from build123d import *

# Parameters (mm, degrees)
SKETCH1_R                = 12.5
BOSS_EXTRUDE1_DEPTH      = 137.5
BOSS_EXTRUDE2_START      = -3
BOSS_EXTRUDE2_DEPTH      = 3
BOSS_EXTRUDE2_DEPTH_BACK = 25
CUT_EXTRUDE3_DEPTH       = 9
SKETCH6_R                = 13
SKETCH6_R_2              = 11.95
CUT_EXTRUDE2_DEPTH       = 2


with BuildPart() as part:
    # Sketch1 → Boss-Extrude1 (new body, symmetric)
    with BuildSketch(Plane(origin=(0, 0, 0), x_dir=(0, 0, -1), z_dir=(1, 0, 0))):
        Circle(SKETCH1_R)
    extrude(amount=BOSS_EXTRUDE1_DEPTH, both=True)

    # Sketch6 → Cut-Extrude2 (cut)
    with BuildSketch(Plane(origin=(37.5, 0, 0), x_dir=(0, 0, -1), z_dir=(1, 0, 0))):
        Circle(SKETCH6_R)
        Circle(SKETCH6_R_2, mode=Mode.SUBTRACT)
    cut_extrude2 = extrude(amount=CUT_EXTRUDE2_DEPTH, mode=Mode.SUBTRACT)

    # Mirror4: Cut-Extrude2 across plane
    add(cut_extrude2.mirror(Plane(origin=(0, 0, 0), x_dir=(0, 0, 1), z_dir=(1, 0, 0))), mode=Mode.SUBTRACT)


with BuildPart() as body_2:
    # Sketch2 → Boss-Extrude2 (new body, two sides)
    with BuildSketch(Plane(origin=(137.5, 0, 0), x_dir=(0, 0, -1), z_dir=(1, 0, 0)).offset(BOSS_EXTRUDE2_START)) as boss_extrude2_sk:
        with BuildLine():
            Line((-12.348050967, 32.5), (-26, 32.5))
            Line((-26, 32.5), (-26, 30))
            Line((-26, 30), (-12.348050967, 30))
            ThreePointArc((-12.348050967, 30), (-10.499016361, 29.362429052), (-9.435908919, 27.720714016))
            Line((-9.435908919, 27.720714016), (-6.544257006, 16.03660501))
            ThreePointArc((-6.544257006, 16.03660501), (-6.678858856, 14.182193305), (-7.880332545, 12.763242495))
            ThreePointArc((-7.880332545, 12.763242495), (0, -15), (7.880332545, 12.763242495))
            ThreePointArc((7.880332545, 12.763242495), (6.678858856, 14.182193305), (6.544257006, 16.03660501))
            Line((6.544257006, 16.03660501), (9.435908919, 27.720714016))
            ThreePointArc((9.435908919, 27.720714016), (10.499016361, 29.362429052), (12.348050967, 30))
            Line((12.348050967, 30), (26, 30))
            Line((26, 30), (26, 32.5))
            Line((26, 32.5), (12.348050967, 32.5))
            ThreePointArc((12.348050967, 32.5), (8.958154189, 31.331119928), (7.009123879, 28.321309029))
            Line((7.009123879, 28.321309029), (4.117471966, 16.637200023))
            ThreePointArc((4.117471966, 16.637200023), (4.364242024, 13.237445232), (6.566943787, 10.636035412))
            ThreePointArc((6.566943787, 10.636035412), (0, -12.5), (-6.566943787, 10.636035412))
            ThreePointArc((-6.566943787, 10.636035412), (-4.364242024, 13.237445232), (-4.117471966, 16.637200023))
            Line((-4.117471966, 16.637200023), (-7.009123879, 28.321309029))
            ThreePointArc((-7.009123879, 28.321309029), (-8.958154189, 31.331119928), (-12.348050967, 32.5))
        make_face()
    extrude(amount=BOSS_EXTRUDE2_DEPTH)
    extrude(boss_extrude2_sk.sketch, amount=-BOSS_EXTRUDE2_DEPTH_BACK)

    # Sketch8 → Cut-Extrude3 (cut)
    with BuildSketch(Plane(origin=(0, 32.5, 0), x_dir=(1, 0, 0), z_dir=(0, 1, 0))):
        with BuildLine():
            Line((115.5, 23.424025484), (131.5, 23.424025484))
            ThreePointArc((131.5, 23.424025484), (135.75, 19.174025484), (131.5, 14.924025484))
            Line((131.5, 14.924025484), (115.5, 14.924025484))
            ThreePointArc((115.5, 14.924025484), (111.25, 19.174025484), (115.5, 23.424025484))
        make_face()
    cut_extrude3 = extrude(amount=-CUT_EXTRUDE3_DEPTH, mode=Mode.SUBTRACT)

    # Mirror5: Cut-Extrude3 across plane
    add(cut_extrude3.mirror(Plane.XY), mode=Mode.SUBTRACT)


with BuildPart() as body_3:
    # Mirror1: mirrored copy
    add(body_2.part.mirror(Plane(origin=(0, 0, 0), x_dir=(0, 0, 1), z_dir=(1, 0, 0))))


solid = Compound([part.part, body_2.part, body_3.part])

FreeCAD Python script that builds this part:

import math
import FreeCAD as App
import Part
import Sketcher
Q = App.Units.Quantity

doc = App.newDocument("Part")
params = doc.addObject("Spreadsheet::Sheet", "Params")
for row, (alias, value) in enumerate([
    ("sketch1_diameter", "25 mm"),
    ("pad1_length", "275 mm"),
    ("sketch2_diameter", "26 mm"),
    ("sketch2_diameter2", "23.9 mm"),
    ("pocket1_length", "2 mm"),
    ("sketch3_radius", "3 mm"),
    ("sketch3_radius2", "15 mm"),
    ("sketch3_radius3", "5.5 mm"),
    ("pad2_length", "3 mm"),
    ("pad2_length2", "25 mm"),
    ("sketch4_width", "16 mm"),
    ("sketch4_radius", "4.25 mm"),
    ("pocket2_length", "9 mm"),
], start=1):
    params.set(f"A{row}", alias)
    params.set(f"B{row}", "=" + value)
    params.setAlias(f"B{row}", alias)

body = doc.addObject("PartDesign::Body", "Body")

sketch1 = body.newObject("Sketcher::SketchObject", "Sketch")
sketch1.AttachmentSupport = (doc.getObject("YZ_Plane"), [""])
sketch1.MapMode = "FlatFace"
sketch1.addGeometry(Part.Circle(App.Vector(0, 0, 0), App.Vector(0, 0, 1), 12), False)
sketch1.addConstraint([
    Sketcher.Constraint("Coincident", 0, 3, -1, 1),
    Sketcher.Constraint("Diameter", 0, Q("25 mm")),
])
sketch1.setExpression("Constraints[1]", "Params.sketch1_diameter")
pad1 = body.newObject("PartDesign::Pad", "Pad")
pad1.Profile = sketch1
pad1.setExpression("Length", "Params.pad1_length")
pad1.Midplane = True

sketch2 = body.newObject("Sketcher::SketchObject", "Sketch001")
sketch2.AttachmentSupport = (doc.getObject("YZ_Plane"), [""])
sketch2.MapMode = "FlatFace"
sketch2.AttachmentOffset = App.Placement(App.Vector(0, 0, 37.5), App.Rotation())
sketch2.addGeometry([
    Part.Circle(App.Vector(0, 0, 0), App.Vector(0, 0, 1), 13),
    Part.Circle(App.Vector(0, 0, 0), App.Vector(0, 0, 1), 12),
], False)
sketch2.addConstraint([
    Sketcher.Constraint("Coincident", 0, 3, -1, 1),
    Sketcher.Constraint("Coincident", 1, 3, -1, 1),
    Sketcher.Constraint("Diameter", 0, Q("26 mm")),
    Sketcher.Constraint("Diameter", 1, Q("23.9 mm")),
])
sketch2.setExpression("Constraints[2]", "Params.sketch2_diameter")
sketch2.setExpression("Constraints[3]", "Params.sketch2_diameter2")
pocket1 = body.newObject("PartDesign::Pocket", "Pocket")
pocket1.Profile = sketch2
pocket1.setExpression("Length", "Params.pocket1_length")
pocket1.Reversed = True
doc.recompute()

mirrored = body.newObject("PartDesign::Mirrored", "Mirrored")
mirrored.Originals = [pocket1]
mirrored.MirrorPlane = (doc.getObject("YZ_Plane"), [""])
body.Tip = mirrored
body2 = doc.addObject("PartDesign::Body", "Body001")

sketch3 = body2.newObject("Sketcher::SketchObject", "Sketch002")
sketch3.AttachmentSupport = (doc.getObject("YZ_Plane001"), [""])
sketch3.MapMode = "FlatFace"
sketch3.AttachmentOffset = App.Placement(App.Vector(0, 0, 134.5), App.Rotation())
sketch3.addGeometry([
    Part.LineSegment(App.Vector(32.5, 12.3, 0), App.Vector(32.5, 26, 0)),
    Part.LineSegment(App.Vector(32.5, 26, 0), App.Vector(30, 26, 0)),
    Part.LineSegment(App.Vector(30, 26, 0), App.Vector(30, 12.3, 0)),
    Part.ArcOfCircle(Part.Circle(App.Vector(27, 12.3, 0), App.Vector(0, 0, 1), 3), math.radians(-76), math.radians(0)),
    Part.LineSegment(App.Vector(27.7, 9.4, 0), App.Vector(16, 6.5, 0)),
    Part.ArcOfCircle(Part.Circle(App.Vector(15.3, 9.5, 0), App.Vector(0, 0, 1), 3), math.radians(-148), math.radians(-76)),
    Part.ArcOfCircle(Part.Circle(App.Vector(0, 0, 0), App.Vector(0, 0, 1), 15), math.radians(32), math.radians(328)),
    Part.ArcOfCircle(Part.Circle(App.Vector(15.3, -9.5, 0), App.Vector(0, 0, 1), 3), math.radians(76), math.radians(148)),
    Part.LineSegment(App.Vector(16, -6.5, 0), App.Vector(27.7, -9.4, 0)),
    Part.ArcOfCircle(Part.Circle(App.Vector(27, -12.3, 0), App.Vector(0, 0, 1), 3), math.radians(0), math.radians(76)),
    Part.LineSegment(App.Vector(30, -12.3, 0), App.Vector(30, -26, 0)),
    Part.LineSegment(App.Vector(30, -26, 0), App.Vector(32.5, -26, 0)),
    Part.LineSegment(App.Vector(32.5, -26, 0), App.Vector(32.5, -12.3, 0)),
    Part.ArcOfCircle(Part.Circle(App.Vector(27, -12.3, 0), App.Vector(0, 0, 1), 5.5), math.radians(0), math.radians(76)),
    Part.LineSegment(App.Vector(28.3, -7, 0), App.Vector(16.6, -4.1, 0)),
    Part.ArcOfCircle(Part.Circle(App.Vector(15.3, -9.5, 0), App.Vector(0, 0, 1), 5.5), math.radians(76), math.radians(148)),
    Part.ArcOfCircle(Part.Circle(App.Vector(0, 0, 0), App.Vector(0, 0, 1), 12.5), math.radians(32), math.radians(328)),
    Part.ArcOfCircle(Part.Circle(App.Vector(15.3, 9.5, 0), App.Vector(0, 0, 1), 5.5), math.radians(-148), math.radians(-76)),
    Part.LineSegment(App.Vector(16.6, 4.1, 0), App.Vector(28.3, 7, 0)),
    Part.ArcOfCircle(Part.Circle(App.Vector(27, 12.3, 0), App.Vector(0, 0, 1), 5.5), math.radians(-76), math.radians(0)),
], False)
sketch3.addConstraint([
    Sketcher.Constraint("Coincident", 0, 2, 1, 1),
    Sketcher.Constraint("Coincident", 1, 2, 2, 1),
    Sketcher.Constraint("Tangent", 2, 2, 3, 2),
    Sketcher.Constraint("Tangent", 3, 1, 4, 1),
    Sketcher.Constraint("Tangent", 4, 2, 5, 2),
    Sketcher.Constraint("Tangent", 5, 1, 6, 1),
    Sketcher.Constraint("Tangent", 6, 2, 7, 2),
    Sketcher.Constraint("Tangent", 7, 1, 8, 1),
    Sketcher.Constraint("Tangent", 8, 2, 9, 2),
    Sketcher.Constraint("Tangent", 9, 1, 10, 1),
    Sketcher.Constraint("Coincident", 10, 2, 11, 1),
    Sketcher.Constraint("Coincident", 11, 2, 12, 1),
    Sketcher.Constraint("Tangent", 12, 2, 13, 1),
    Sketcher.Constraint("Tangent", 13, 2, 14, 1),
    Sketcher.Constraint("Tangent", 14, 2, 15, 1),
    Sketcher.Constraint("Tangent", 15, 2, 16, 2),
    Sketcher.Constraint("Tangent", 16, 1, 17, 1),
    Sketcher.Constraint("Tangent", 17, 2, 18, 1),
    Sketcher.Constraint("Tangent", 18, 2, 19, 1),
    Sketcher.Constraint("Tangent", 19, 2, 0, 1),
    Sketcher.Constraint("Vertical", 0),
    Sketcher.Constraint("Horizontal", 1),
    Sketcher.Constraint("Vertical", 2),
    Sketcher.Constraint("Vertical", 10),
    Sketcher.Constraint("Horizontal", 11),
    Sketcher.Constraint("Vertical", 12),
    Sketcher.Constraint("Coincident", 6, 3, -1, 1),
    Sketcher.Constraint("Coincident", 16, 3, -1, 1),
    Sketcher.Constraint("Coincident", 13, 3, 9, 3),
    Sketcher.Constraint("Coincident", 15, 3, 7, 3),
    Sketcher.Constraint("Coincident", 17, 3, 5, 3),
    Sketcher.Constraint("Coincident", 19, 3, 3, 3),
    Sketcher.Constraint("Equal", 3, 5),
    Sketcher.Constraint("Equal", 5, 7),
    Sketcher.Constraint("Equal", 7, 9),
    Sketcher.Constraint("Equal", 13, 15),
    Sketcher.Constraint("Equal", 17, 19),
    Sketcher.Constraint("Symmetric", 3, 3, 9, 3, -1),
    Sketcher.Constraint("Vertical", 5, 3, 7, 3),
    Sketcher.Constraint("Equal", 2, 10),
    Sketcher.Constraint("Radius", 3, Q("3 mm")),
    Sketcher.Constraint("Radius", 6, Q("15 mm")),
    Sketcher.Constraint("Radius", 13, Q("5.5 mm")),
    Sketcher.Constraint("DistanceX", -1, 1, 3, 3, Q("27 mm")),
    Sketcher.Constraint("DistanceY", -1, 1, 0, 2, Q("26 mm")),
    Sketcher.Constraint("DistanceY", 0, 1, 0, 2, Q("13.651949 mm")),
    Sketcher.Constraint("DistanceY", -1, 1, 5, 3, Q("9.456399 mm")),
])
sketch3.setExpression("Constraints[40]", "Params.sketch3_radius")
sketch3.setExpression("Constraints[41]", "Params.sketch3_radius2")
sketch3.setExpression("Constraints[42]", "Params.sketch3_radius3")
pad2 = body2.newObject("PartDesign::Pad", "Pad001")
pad2.Profile = sketch3
pad2.Type = "TwoLengths"
pad2.setExpression("Length", "Params.pad2_length")
pad2.setExpression("Length2", "Params.pad2_length2")

sketch4 = body2.newObject("Sketcher::SketchObject", "Sketch003")
sketch4.AttachmentSupport = (doc.getObject("XZ_Plane001"), [""])
sketch4.MapMode = "FlatFace"
sketch4.AttachmentOffset = App.Placement(App.Vector(0, 0, -32.5), App.Rotation())
sketch4.addGeometry([
    Part.LineSegment(App.Vector(131.5, -23.4, 0), App.Vector(115.5, -23.4, 0)),
    Part.ArcOfCircle(Part.Circle(App.Vector(115.5, -19.2, 0), App.Vector(0, 0, 1), 4.2), math.radians(90), math.radians(270)),
    Part.LineSegment(App.Vector(115.5, -14.9, 0), App.Vector(131.5, -14.9, 0)),
    Part.ArcOfCircle(Part.Circle(App.Vector(131.5, -19.2, 0), App.Vector(0, 0, 1), 4.2), math.radians(-90), math.radians(90)),
], False)
sketch4.addConstraint([
    Sketcher.Constraint("Tangent", 0, 2, 1, 2),
    Sketcher.Constraint("Tangent", 1, 1, 2, 1),
    Sketcher.Constraint("Tangent", 2, 2, 3, 2),
    Sketcher.Constraint("Tangent", 3, 1, 0, 1),
    Sketcher.Constraint("Horizontal", 0),
    Sketcher.Constraint("Horizontal", 2),
    Sketcher.Constraint("DistanceX", 0, 2, 0, 1, Q("16 mm")),
    Sketcher.Constraint("Radius", 1, Q("4.25 mm")),
    Sketcher.Constraint("DistanceX", -1, 1, 1, 3, Q("115.5 mm")),
    Sketcher.Constraint("DistanceY", 1, 3, -1, 1, Q("19.174025 mm")),
])
sketch4.setExpression("Constraints[6]", "Params.sketch4_width")
sketch4.setExpression("Constraints[7]", "Params.sketch4_radius")
pocket2 = body2.newObject("PartDesign::Pocket", "Pocket001")
pocket2.Profile = sketch4
pocket2.setExpression("Length", "Params.pocket2_length")
pocket2.Reversed = True
doc.recompute()

mirrored2 = body2.newObject("PartDesign::Mirrored", "Mirrored001")
mirrored2.Originals = [pocket2]
mirrored2.MirrorPlane = (doc.getObject("XY_Plane001"), [""])
body2.Tip = mirrored2
body3 = doc.addObject("PartDesign::Body", "Body002")
doc.recompute()

mirroring = doc.addObject("Part::Mirroring", "Mirroring")
mirroring.Source = body2
mirroring.Base = App.Vector(0, 0, 0)
mirroring.Normal = App.Vector(1, 0, 0)
body3.BaseFeature = mirroring
doc.recompute()
mirroring.Visibility = False

doc.recompute()
